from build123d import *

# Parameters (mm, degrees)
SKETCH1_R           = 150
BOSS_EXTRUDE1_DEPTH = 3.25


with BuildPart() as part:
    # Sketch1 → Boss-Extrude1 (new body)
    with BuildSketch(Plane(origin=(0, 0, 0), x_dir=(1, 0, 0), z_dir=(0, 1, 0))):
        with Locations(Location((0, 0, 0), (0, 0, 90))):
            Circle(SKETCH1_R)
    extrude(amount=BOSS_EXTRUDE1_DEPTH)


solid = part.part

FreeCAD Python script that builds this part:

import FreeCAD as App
import Part
import Sketcher
from FreeCAD import Vector

doc = App.newDocument("Part")
body = doc.addObject("PartDesign::Body", "Body")

sketch1 = body.newObject("Sketcher::SketchObject", "Sketch")
sketch1.AttachmentSupport = (doc.getObject("XZ_Plane"), [""])
sketch1.MapMode = "FlatFace"
sketch1.addGeometry(Part.Circle(Vector(0, 0, 0), Vector(0, 0, 1), 150), False)
sketch1.addConstraint(Sketcher.Constraint("Coincident", 0, 3, -1, 1))
sketch1.addConstraint(Sketcher.Constraint("Diameter", 0, 300.0))
pad1 = body.newObject("PartDesign::Pad", "Pad")
pad1.Profile = sketch1
pad1.Length = 3.25
pad1.Reversed = True

doc.recompute()
